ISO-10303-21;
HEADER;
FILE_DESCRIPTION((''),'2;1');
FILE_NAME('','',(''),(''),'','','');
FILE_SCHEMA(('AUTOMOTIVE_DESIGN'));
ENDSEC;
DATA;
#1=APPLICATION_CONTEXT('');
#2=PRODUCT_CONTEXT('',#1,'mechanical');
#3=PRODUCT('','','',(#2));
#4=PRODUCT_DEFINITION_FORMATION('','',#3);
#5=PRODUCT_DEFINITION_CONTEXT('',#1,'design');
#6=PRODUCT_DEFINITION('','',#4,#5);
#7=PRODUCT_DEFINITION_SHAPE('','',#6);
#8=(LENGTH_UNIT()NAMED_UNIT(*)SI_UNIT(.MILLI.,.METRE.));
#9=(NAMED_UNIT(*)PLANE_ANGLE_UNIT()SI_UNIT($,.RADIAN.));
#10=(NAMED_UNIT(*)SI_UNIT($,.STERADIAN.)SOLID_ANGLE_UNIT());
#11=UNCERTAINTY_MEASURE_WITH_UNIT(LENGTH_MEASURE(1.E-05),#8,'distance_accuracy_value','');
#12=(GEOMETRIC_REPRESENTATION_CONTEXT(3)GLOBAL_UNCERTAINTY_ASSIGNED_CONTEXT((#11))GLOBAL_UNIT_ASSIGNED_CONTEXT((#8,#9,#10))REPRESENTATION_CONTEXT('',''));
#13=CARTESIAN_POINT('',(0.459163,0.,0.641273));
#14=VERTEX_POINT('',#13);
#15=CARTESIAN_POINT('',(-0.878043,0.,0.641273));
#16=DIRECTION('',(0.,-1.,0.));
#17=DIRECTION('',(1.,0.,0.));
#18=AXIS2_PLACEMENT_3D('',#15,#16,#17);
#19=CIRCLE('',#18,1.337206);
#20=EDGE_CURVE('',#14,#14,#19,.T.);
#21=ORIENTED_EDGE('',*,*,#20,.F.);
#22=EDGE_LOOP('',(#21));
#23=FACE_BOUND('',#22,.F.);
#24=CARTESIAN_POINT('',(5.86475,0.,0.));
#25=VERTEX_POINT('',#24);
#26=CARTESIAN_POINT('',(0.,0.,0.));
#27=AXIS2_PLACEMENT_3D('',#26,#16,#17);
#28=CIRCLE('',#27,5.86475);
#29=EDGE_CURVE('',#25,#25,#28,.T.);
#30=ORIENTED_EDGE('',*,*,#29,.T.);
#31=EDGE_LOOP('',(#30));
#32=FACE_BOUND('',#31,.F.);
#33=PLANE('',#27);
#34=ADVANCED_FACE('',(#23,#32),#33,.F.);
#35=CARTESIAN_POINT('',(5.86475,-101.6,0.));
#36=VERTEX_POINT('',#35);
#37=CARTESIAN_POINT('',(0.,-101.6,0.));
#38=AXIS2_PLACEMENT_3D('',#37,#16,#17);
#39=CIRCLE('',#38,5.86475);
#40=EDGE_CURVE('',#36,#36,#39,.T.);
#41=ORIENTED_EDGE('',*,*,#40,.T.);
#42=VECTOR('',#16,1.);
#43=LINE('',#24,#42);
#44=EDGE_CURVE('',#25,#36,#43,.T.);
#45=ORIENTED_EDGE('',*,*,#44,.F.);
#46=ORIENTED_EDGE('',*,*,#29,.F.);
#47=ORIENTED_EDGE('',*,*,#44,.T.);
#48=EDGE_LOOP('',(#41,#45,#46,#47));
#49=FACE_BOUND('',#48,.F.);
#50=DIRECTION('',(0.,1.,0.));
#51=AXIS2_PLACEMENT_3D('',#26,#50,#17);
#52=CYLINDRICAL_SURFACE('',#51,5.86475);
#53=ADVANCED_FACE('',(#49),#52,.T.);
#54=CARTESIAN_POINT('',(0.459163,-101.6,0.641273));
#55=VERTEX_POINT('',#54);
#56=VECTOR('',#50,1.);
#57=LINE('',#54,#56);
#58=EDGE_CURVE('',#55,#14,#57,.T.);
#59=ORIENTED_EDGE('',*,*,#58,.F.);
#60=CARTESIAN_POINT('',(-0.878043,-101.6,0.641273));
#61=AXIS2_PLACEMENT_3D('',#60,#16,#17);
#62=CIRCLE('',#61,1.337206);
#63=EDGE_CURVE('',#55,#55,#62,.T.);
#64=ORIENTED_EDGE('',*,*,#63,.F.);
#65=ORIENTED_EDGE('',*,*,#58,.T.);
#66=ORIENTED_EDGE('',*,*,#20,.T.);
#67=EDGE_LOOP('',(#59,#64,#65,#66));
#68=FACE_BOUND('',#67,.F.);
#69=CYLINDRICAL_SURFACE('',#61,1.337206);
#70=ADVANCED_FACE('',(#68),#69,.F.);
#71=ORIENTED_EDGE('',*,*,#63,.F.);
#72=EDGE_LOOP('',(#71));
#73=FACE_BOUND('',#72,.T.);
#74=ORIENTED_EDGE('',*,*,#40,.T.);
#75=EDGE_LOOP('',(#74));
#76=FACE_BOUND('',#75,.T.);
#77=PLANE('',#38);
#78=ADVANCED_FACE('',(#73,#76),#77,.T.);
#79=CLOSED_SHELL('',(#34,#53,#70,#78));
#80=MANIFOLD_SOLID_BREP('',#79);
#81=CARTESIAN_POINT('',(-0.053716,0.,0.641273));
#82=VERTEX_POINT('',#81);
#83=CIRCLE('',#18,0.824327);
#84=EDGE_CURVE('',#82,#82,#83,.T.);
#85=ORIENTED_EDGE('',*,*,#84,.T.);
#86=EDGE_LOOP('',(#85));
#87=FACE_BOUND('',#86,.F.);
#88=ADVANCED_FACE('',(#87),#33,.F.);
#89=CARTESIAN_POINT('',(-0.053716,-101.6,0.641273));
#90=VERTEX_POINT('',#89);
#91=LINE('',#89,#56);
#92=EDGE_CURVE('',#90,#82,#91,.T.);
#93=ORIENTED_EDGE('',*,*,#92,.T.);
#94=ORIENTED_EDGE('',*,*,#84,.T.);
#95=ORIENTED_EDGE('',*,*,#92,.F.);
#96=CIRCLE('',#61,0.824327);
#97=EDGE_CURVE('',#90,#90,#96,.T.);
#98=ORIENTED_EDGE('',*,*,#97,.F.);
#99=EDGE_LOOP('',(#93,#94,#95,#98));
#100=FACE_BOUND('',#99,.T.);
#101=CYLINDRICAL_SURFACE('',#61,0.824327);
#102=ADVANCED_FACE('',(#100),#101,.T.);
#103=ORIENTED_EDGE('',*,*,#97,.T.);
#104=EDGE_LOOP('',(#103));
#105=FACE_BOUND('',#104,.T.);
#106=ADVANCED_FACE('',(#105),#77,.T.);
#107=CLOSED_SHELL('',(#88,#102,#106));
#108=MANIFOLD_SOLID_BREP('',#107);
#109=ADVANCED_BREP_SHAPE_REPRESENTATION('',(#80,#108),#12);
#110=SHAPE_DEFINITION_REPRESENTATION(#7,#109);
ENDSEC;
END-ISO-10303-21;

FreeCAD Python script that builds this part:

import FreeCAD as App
import Part
import Sketcher
from FreeCAD import Vector

doc = App.newDocument("Part")
params = doc.addObject("Spreadsheet::Sheet", "Params")
for row, (alias, value) in enumerate([
    ("pad1_length", "4 in"),
    ("pocket1_length", "4 in"),
], start=1):
    params.set(f"A{row}", alias)
    params.set(f"B{row}", "=" + value)
    params.setAlias(f"B{row}", alias)

body = doc.addObject("PartDesign::Body", "Body")
body.AllowCompound = True

# Sketch on XZ plane
sketch1 = body.newObject("Sketcher::SketchObject", "Sketch")
sketch1.AttachmentSupport = (doc.getObject("XZ_Plane"), [""])
sketch1.MapMode = "FlatFace"
sketch1.addGeometry(Part.Circle(Vector(0, 0, 0), Vector(0, 0, 1), 6), False)
sketch1.addConstraint(Sketcher.Constraint("Coincident", 0, 3, -1, 1))
sketch1.addConstraint(Sketcher.Constraint("Diameter", 0, 11.7295))
pad1 = body.newObject("PartDesign::Pad", "Pad")
pad1.Profile = sketch1
pad1.setExpression("Length", "Params.pad1_length")

# Sketch on XZ plane
sketch2 = body.newObject("Sketcher::SketchObject", "Sketch001")
sketch2.AttachmentSupport = (doc.getObject("XZ_Plane"), [""])
sketch2.MapMode = "FlatFace"
sketch2.AttachmentOffset = App.Placement(Vector(0, 0, 4 * 25.4), App.Rotation())
sketch2.addGeometry(Part.Circle(Vector(-0.9, 0.6, 0), Vector(0, 0, 1), 1.3), False)
sketch2.addGeometry(Part.Circle(Vector(-0.9, 0.6, 0), Vector(0, 0, 1), 0.8), False)
sketch2.addConstraint(Sketcher.Constraint("Coincident", 1, 3, 0, 3))
sketch2.addConstraint(Sketcher.Constraint("Diameter", 0, 2.674412))
sketch2.addConstraint(Sketcher.Constraint("Diameter", 1, 1.648654))
sketch2.addConstraint(Sketcher.Constraint("DistanceX", 0, 3, -1, 1, 0.878043))
sketch2.addConstraint(Sketcher.Constraint("DistanceY", -1, 1, 0, 3, 0.641273))
pocket1 = body.newObject("PartDesign::Pocket", "Pocket")
pocket1.Profile = sketch2
pocket1.setExpression("Length", "Params.pocket1_length")

doc.recompute()
